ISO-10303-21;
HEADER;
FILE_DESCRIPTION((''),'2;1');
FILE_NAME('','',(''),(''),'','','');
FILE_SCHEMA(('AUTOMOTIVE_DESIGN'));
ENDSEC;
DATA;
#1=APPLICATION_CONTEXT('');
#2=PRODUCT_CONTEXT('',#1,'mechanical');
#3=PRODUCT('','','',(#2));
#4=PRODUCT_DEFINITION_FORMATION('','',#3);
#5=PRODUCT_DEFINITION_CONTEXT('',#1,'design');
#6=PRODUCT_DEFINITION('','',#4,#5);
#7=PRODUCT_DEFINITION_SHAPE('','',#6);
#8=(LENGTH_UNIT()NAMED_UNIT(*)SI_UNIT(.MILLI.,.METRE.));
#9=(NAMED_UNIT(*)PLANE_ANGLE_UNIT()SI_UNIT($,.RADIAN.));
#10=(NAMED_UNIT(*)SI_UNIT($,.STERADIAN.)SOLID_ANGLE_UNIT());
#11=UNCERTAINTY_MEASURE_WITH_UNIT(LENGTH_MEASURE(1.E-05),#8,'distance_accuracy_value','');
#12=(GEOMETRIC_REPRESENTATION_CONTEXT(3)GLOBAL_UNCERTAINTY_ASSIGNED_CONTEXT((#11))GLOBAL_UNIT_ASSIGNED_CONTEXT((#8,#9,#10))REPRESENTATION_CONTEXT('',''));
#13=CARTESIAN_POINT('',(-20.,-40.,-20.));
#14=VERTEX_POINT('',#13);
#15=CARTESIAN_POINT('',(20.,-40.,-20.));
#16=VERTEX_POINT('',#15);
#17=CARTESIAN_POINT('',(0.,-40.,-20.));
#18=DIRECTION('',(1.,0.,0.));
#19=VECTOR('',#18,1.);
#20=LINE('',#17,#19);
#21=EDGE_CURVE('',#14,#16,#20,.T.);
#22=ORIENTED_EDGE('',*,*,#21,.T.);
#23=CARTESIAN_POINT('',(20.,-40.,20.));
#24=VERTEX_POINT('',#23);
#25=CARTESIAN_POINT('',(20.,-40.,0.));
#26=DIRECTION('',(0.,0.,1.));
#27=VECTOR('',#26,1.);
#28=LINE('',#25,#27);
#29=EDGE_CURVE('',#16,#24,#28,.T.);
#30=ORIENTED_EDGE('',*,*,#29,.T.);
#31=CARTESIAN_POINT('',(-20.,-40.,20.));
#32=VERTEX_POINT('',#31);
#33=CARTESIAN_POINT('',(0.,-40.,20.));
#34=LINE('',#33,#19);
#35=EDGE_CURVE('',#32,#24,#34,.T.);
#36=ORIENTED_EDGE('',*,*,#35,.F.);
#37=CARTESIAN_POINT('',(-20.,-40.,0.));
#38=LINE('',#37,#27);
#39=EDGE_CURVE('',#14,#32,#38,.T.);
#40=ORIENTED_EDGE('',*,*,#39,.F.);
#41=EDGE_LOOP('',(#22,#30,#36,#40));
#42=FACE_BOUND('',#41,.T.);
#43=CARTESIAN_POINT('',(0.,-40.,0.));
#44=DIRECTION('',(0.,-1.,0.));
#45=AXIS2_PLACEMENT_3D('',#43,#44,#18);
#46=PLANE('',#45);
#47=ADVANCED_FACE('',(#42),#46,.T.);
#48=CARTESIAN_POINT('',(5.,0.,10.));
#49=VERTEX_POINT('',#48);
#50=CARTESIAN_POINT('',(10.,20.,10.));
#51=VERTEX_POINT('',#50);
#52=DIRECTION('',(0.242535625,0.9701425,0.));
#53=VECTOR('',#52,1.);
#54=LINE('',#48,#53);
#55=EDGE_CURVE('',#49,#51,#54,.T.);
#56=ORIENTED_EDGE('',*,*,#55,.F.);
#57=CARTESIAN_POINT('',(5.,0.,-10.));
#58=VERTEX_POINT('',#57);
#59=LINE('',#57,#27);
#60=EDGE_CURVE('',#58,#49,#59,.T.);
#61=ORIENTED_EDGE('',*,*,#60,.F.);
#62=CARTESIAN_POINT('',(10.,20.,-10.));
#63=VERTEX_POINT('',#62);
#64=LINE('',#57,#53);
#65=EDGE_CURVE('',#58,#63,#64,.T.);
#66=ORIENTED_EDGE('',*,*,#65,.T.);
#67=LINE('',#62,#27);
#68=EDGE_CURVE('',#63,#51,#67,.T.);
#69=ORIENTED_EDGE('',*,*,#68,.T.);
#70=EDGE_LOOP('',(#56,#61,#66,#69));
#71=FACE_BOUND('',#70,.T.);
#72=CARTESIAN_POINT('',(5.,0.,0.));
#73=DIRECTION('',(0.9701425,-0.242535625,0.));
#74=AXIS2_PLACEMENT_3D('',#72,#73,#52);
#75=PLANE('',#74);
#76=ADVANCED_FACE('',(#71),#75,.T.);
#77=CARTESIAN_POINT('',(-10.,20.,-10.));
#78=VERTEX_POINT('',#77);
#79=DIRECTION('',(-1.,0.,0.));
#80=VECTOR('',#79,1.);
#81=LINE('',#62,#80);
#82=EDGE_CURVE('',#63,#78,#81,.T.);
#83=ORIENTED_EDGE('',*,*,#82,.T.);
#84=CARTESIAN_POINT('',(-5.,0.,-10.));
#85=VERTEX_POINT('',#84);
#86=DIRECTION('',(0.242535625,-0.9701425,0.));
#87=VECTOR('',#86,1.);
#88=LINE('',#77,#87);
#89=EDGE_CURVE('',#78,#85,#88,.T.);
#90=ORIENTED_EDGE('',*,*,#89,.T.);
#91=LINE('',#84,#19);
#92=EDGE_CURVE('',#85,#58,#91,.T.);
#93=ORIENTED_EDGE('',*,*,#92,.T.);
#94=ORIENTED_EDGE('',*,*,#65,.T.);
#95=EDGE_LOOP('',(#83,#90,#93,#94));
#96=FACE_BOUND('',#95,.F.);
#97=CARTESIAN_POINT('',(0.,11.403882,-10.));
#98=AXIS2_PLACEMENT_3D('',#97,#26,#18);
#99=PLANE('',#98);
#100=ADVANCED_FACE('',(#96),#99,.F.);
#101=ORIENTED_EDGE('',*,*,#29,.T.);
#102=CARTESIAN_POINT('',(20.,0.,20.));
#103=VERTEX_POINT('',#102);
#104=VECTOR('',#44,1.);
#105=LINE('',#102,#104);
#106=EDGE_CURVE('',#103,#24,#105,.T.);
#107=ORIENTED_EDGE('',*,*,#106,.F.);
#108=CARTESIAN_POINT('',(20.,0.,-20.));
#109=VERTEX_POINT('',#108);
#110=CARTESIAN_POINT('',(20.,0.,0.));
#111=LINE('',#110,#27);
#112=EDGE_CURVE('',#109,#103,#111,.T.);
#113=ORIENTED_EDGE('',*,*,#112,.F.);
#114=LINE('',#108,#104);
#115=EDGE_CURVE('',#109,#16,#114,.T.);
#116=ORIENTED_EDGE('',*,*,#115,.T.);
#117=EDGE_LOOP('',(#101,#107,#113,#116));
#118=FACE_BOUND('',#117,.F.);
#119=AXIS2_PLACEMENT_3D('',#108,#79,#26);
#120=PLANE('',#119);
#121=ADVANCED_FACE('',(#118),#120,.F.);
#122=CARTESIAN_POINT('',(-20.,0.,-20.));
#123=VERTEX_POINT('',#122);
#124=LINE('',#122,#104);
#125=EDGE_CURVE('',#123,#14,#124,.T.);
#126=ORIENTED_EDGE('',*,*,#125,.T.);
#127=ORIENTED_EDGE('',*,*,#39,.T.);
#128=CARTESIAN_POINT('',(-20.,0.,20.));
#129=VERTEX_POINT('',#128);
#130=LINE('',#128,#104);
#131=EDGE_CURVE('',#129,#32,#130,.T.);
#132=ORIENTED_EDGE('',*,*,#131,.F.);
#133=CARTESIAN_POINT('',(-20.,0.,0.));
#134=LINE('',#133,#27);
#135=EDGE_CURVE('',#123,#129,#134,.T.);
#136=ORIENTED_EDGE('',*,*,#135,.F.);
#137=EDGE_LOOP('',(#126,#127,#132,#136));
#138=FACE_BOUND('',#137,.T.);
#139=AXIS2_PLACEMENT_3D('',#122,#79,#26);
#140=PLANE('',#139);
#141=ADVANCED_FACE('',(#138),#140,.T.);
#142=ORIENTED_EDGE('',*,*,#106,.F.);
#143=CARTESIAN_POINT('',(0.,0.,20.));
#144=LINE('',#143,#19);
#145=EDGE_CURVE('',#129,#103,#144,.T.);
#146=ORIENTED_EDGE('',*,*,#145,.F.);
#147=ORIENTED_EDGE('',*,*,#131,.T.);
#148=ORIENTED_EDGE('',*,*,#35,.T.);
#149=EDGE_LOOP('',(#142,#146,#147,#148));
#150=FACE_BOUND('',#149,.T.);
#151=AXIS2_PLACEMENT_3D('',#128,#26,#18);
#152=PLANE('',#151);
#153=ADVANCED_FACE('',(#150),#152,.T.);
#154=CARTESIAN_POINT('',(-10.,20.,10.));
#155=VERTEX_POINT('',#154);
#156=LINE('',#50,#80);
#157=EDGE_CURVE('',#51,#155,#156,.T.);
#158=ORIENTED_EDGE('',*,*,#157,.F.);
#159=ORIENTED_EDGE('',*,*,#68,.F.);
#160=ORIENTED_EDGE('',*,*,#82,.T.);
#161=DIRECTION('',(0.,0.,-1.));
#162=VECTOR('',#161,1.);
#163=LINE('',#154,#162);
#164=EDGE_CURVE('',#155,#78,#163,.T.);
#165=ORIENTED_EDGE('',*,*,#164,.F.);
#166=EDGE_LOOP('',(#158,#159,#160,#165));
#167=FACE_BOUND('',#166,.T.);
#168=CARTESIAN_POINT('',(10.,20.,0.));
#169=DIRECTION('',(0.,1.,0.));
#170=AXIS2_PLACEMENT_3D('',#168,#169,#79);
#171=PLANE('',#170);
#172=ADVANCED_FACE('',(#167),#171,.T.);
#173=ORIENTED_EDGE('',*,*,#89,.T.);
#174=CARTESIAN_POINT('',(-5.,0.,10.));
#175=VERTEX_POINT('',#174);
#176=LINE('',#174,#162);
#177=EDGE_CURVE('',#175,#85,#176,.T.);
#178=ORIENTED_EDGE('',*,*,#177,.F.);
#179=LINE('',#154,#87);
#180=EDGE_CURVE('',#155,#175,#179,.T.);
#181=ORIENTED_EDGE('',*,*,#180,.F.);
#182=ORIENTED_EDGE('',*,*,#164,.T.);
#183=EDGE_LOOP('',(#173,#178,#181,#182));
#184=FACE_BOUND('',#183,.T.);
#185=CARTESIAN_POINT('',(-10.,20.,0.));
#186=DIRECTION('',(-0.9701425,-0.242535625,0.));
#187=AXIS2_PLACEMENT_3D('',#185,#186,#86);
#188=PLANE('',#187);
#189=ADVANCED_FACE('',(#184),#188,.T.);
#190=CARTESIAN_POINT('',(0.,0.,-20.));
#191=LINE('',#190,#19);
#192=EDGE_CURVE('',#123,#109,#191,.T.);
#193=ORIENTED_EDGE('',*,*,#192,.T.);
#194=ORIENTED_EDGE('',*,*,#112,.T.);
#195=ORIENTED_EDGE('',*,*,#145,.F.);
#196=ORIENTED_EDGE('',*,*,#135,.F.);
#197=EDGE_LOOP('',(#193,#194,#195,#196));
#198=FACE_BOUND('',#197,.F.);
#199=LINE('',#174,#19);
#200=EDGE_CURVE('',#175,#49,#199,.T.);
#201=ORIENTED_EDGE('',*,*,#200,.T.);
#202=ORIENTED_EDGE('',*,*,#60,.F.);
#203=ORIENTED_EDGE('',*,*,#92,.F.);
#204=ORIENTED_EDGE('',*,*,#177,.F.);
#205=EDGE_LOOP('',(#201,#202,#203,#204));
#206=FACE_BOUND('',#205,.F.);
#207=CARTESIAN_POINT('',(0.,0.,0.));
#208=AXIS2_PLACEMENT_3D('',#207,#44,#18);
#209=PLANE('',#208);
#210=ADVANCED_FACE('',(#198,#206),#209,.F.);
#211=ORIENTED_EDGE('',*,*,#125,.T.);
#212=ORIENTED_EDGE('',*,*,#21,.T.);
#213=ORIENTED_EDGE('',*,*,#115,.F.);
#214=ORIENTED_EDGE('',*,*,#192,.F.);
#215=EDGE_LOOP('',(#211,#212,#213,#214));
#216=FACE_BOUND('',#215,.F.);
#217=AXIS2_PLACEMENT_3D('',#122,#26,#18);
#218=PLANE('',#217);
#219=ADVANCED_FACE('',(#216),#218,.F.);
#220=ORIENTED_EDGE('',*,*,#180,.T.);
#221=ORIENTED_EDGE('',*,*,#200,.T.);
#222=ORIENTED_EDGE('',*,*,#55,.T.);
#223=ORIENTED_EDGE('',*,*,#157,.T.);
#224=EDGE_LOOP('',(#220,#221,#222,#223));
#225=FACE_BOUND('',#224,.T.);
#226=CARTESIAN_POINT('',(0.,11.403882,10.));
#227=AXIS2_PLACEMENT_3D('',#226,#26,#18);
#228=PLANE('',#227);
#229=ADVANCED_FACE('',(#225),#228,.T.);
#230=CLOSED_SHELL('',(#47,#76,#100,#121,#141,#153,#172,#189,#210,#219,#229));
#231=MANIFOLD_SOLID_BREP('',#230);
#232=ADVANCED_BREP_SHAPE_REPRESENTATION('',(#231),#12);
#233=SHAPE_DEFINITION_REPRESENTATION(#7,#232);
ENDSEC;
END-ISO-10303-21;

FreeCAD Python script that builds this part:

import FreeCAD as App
import Part
import Sketcher

doc = App.newDocument("Part")
body = doc.addObject("PartDesign::Body", "Body")

# Sketch on XZ plane
sketch1 = doc.addObject("Sketcher::SketchObject", "Sketch")
body.addObject(sketch1)
sketch1.AttachmentSupport = (doc.XZ_Plane, [""])
sketch1.MapMode = "FlatFace"
sketch1.addGeometry([
    Part.LineSegment(App.Vector(-20, 20, 0), App.Vector(-20, -20, 0)),
    Part.LineSegment(App.Vector(-20, -20, 0), App.Vector(20, -20, 0)),
    Part.LineSegment(App.Vector(20, -20, 0), App.Vector(20, 20, 0)),
    Part.LineSegment(App.Vector(20, 20, 0), App.Vector(-20, 20, 0)),
], False)
sketch1.addConstraint([
    Sketcher.Constraint("Coincident", 0, 2, 1, 1),
    Sketcher.Constraint("Coincident", 1, 2, 2, 1),
    Sketcher.Constraint("Coincident", 2, 2, 3, 1),
    Sketcher.Constraint("Coincident", 3, 2, 0, 1),
    Sketcher.Constraint("Vertical", 0),
    Sketcher.Constraint("Horizontal", 1),
    Sketcher.Constraint("Vertical", 2),
    Sketcher.Constraint("Horizontal", 3),
    Sketcher.Constraint("Symmetric", 0, 2, 2, 2, -1, 1),
    Sketcher.Constraint("Equal", 3, 0),
    Sketcher.Constraint("DistanceX", 1, 1, 1, 2, 40.0),
])
pad1 = doc.addObject("PartDesign::Pad", "Pad")
body.addObject(pad1)
pad1.Profile = sketch1
pad1.Length = 40

# Sketch on XY plane
sketch2 = doc.addObject("Sketcher::SketchObject", "Sketch001")
body.addObject(sketch2)
sketch2.AttachmentSupport = (doc.XY_Plane, [""])
sketch2.MapMode = "FlatFace"
sketch2.addGeometry([
    Part.LineSegment(App.Vector(-5, 0, 0), App.Vector(5, 0, 0)),
    Part.LineSegment(App.Vector(5, 0, 0), App.Vector(10, 20, 0)),
    Part.LineSegment(App.Vector(10, 20, 0), App.Vector(-10, 20, 0)),
    Part.LineSegment(App.Vector(-10, 20, 0), App.Vector(-5, 0, 0)),
], False)
sketch2.addConstraint([
    Sketcher.Constraint("Coincident", 0, 2, 1, 1),
    Sketcher.Constraint("Coincident", 1, 2, 2, 1),
    Sketcher.Constraint("Coincident", 2, 2, 3, 1),
    Sketcher.Constraint("Coincident", 3, 2, 0, 1),
    Sketcher.Constraint("Horizontal", 0),
    Sketcher.Constraint("Horizontal", 2),
    Sketcher.Constraint("Symmetric", 0, 2, 3, 2, -1, 1),
    Sketcher.Constraint("Equal", 1, 3),
    Sketcher.Constraint("DistanceX", 0, 1, 0, 2, 10.0),
    Sketcher.Constraint("DistanceX", 2, 2, 2, 1, 20.0),
    Sketcher.Constraint("DistanceY", -1, 1, 1, 2, 20.0),
])
pad2 = doc.addObject("PartDesign::Pad", "Pad001")
body.addObject(pad2)
pad2.Profile = sketch2
pad2.Length = 20
pad2.Midplane = True

doc.recompute()
